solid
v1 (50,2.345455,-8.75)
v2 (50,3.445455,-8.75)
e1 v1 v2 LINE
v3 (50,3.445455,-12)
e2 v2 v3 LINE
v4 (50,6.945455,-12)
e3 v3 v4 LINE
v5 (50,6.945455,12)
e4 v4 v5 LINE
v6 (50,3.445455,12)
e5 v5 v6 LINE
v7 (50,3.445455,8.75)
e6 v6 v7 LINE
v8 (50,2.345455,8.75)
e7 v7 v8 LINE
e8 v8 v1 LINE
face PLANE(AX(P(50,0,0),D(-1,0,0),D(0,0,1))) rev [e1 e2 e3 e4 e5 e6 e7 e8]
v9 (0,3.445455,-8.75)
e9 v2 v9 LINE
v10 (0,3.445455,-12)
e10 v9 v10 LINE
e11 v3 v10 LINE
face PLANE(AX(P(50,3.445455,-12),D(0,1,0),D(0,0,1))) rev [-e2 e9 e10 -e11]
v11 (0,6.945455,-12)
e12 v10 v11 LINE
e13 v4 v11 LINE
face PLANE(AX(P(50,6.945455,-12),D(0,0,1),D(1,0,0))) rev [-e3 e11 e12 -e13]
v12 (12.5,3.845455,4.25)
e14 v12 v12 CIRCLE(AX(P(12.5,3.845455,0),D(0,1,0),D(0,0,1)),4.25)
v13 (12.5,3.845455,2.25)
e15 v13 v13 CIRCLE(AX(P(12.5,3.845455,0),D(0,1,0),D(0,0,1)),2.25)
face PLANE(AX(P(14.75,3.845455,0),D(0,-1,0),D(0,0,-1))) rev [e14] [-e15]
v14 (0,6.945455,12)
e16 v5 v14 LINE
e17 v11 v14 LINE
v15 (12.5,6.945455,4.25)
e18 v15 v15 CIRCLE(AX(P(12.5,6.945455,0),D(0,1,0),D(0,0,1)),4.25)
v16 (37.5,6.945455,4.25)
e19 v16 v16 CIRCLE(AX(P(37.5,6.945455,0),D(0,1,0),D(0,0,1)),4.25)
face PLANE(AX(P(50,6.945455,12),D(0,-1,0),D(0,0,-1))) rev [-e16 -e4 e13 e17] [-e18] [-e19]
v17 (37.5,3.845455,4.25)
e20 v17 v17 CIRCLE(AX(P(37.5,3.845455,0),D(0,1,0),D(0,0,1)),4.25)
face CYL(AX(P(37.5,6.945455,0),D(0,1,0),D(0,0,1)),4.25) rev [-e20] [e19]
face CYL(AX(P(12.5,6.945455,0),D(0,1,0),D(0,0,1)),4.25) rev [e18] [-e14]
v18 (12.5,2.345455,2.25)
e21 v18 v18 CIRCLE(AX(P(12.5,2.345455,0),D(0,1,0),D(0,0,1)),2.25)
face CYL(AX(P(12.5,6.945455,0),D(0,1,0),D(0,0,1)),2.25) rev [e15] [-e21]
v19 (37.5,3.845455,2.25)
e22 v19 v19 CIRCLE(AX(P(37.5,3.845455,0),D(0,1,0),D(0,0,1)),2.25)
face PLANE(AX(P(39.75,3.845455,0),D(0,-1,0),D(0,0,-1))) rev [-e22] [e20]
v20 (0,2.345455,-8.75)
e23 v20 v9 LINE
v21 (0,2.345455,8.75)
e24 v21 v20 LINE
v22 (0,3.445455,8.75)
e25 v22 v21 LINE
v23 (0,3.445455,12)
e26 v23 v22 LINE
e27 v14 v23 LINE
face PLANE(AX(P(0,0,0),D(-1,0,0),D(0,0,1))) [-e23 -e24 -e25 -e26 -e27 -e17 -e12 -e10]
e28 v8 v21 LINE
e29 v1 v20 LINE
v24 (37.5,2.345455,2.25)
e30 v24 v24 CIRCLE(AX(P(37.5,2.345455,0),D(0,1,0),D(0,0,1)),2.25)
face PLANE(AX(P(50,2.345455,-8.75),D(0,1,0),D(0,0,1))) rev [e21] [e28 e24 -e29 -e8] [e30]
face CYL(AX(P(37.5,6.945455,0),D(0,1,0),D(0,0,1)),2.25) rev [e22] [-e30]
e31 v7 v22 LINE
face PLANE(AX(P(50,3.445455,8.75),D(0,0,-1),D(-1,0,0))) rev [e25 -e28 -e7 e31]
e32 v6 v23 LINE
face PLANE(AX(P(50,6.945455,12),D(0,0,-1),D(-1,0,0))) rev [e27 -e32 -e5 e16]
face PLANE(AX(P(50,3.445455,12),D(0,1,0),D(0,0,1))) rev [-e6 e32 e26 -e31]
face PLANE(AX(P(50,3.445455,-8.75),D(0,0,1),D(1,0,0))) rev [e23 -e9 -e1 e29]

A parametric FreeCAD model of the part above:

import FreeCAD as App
import Part
import Sketcher

V = App.Vector


def add_polygon(sketch, points):
    """Adds a closed chain of lines whose ends are joined by coincident constraints."""
    first, n = sketch.GeometryCount, len(points)
    for a, b in zip(points, points[1:] + points[:1]):
        sketch.addGeometry(Part.LineSegment(App.Vector(*a, 0), App.Vector(*b, 0)), False)
    for i in range(n):
        sketch.addConstraint(Sketcher.Constraint("Coincident", first + i, 2, first + (i + 1) % n, 1))

doc = App.newDocument("Part")
params = doc.addObject("Spreadsheet::Sheet", "Params")
for row, (alias, value) in enumerate([
    ("sketch1_height", "24 mm"),
    ("sketch1_width", "3.5 mm"),
    ("sketch1_width2", "1.1 mm"),
    ("sketch1_height2", "17.5 mm"),
    ("pad1_length", "50 mm"),
    ("sketch2_diameter", "4.5 mm"),
    ("hole_diameter", "4.5 mm"),
    ("hole_cbore_diameter", "8.5 mm"),
    ("hole_cbore_depth", "3.1 mm"),
], start=1):
    params.set(f"A{row}", alias)
    params.set(f"B{row}", "=" + value)
    params.setAlias(f"B{row}", alias)

body = doc.addObject("PartDesign::Body", "Body")

# Sketch on YZ plane
sketch1 = doc.addObject("Sketcher::SketchObject", "Sketch")
body.addObject(sketch1)
sketch1.AttachmentSupport = (doc.YZ_Plane, [""])
sketch1.MapMode = "FlatFace"
add_polygon(sketch1, [(6.9, -12), (6.9, 12), (3.4, 12), (3.4, 8.8), (2.3, 8.8), (2.3, -8.8), (3.4, -8.8), (3.4, -12)])  # lines 0-7
sketch1.addConstraint([
    Sketcher.Constraint("Vertical", 0),
    Sketcher.Constraint("Horizontal", 1),
    Sketcher.Constraint("Vertical", 2),
    Sketcher.Constraint("Horizontal", 3),
    Sketcher.Constraint("Vertical", 4),
    Sketcher.Constraint("Horizontal", 5),
    Sketcher.Constraint("Vertical", 6),
    Sketcher.Constraint("Horizontal", 7),
    Sketcher.Constraint("Symmetric", 2, 2, 5, 2, -1),
    Sketcher.Constraint("Equal", 2, 6),
    Sketcher.Constraint("DistanceY", 0, 1, 0, 2, 24.0),
    Sketcher.Constraint("DistanceX", 1, 2, 1, 1, 3.5),
    Sketcher.Constraint("DistanceX", 3, 2, 3, 1, 1.1),
    Sketcher.Constraint("DistanceY", 4, 2, 4, 1, 17.5),
    Sketcher.Constraint("DistanceX", -1, 1, 0, 2, 6.945455),
])
sketch1.setExpression("Constraints[18]", "Params.sketch1_height")
sketch1.setExpression("Constraints[19]", "Params.sketch1_width")
sketch1.setExpression("Constraints[20]", "Params.sketch1_width2")
sketch1.setExpression("Constraints[21]", "Params.sketch1_height2")
pad1 = doc.addObject("PartDesign::Pad", "Pad")
body.addObject(pad1)
pad1.Profile = sketch1
pad1.setExpression("Length", "Params.pad1_length")

# Sketch on XZ plane
sketch2 = doc.addObject("Sketcher::SketchObject", "Sketch001")
body.addObject(sketch2)
sketch2.AttachmentSupport = (doc.XZ_Plane, [""])
sketch2.MapMode = "FlatFace"
sketch2.AttachmentOffset = App.Placement(V(0, 0, -6.945455), App.Rotation())
sketch2.addGeometry([
    Part.Circle(V(12.5, 0, 0), V(0, 0, 1), 2.2),
    Part.Circle(V(37.5, 0, 0), V(0, 0, 1), 2.2),
], False)
sketch2.addConstraint([
    Sketcher.Constraint("Equal", 0, 1),
    Sketcher.Constraint("PointOnObject", 0, 3, -1),
    Sketcher.Constraint("PointOnObject", 1, 3, -1),
    Sketcher.Constraint("Diameter", 0, 4.5),
    Sketcher.Constraint("DistanceX", 0, 3, 1, 3, 25.0),
    Sketcher.Constraint("DistanceX", -1, 1, 0, 3, 12.5),
])
sketch2.setExpression("Constraints[3]", "Params.sketch2_diameter")
doc.recompute()
hole = doc.addObject("PartDesign::Hole", "Hole")
body.addObject(hole)
hole.Profile = sketch2
hole.ThreadType = "None"
hole.setExpression("Diameter", "Params.hole_diameter")
hole.DepthType = "ThroughAll"
hole.HoleCutType = "Counterbore"
hole.setExpression("HoleCutDiameter", "Params.hole_cbore_diameter")
hole.setExpression("HoleCutDepth", "Params.hole_cbore_depth")
hole.Reversed = True

doc.recompute()
